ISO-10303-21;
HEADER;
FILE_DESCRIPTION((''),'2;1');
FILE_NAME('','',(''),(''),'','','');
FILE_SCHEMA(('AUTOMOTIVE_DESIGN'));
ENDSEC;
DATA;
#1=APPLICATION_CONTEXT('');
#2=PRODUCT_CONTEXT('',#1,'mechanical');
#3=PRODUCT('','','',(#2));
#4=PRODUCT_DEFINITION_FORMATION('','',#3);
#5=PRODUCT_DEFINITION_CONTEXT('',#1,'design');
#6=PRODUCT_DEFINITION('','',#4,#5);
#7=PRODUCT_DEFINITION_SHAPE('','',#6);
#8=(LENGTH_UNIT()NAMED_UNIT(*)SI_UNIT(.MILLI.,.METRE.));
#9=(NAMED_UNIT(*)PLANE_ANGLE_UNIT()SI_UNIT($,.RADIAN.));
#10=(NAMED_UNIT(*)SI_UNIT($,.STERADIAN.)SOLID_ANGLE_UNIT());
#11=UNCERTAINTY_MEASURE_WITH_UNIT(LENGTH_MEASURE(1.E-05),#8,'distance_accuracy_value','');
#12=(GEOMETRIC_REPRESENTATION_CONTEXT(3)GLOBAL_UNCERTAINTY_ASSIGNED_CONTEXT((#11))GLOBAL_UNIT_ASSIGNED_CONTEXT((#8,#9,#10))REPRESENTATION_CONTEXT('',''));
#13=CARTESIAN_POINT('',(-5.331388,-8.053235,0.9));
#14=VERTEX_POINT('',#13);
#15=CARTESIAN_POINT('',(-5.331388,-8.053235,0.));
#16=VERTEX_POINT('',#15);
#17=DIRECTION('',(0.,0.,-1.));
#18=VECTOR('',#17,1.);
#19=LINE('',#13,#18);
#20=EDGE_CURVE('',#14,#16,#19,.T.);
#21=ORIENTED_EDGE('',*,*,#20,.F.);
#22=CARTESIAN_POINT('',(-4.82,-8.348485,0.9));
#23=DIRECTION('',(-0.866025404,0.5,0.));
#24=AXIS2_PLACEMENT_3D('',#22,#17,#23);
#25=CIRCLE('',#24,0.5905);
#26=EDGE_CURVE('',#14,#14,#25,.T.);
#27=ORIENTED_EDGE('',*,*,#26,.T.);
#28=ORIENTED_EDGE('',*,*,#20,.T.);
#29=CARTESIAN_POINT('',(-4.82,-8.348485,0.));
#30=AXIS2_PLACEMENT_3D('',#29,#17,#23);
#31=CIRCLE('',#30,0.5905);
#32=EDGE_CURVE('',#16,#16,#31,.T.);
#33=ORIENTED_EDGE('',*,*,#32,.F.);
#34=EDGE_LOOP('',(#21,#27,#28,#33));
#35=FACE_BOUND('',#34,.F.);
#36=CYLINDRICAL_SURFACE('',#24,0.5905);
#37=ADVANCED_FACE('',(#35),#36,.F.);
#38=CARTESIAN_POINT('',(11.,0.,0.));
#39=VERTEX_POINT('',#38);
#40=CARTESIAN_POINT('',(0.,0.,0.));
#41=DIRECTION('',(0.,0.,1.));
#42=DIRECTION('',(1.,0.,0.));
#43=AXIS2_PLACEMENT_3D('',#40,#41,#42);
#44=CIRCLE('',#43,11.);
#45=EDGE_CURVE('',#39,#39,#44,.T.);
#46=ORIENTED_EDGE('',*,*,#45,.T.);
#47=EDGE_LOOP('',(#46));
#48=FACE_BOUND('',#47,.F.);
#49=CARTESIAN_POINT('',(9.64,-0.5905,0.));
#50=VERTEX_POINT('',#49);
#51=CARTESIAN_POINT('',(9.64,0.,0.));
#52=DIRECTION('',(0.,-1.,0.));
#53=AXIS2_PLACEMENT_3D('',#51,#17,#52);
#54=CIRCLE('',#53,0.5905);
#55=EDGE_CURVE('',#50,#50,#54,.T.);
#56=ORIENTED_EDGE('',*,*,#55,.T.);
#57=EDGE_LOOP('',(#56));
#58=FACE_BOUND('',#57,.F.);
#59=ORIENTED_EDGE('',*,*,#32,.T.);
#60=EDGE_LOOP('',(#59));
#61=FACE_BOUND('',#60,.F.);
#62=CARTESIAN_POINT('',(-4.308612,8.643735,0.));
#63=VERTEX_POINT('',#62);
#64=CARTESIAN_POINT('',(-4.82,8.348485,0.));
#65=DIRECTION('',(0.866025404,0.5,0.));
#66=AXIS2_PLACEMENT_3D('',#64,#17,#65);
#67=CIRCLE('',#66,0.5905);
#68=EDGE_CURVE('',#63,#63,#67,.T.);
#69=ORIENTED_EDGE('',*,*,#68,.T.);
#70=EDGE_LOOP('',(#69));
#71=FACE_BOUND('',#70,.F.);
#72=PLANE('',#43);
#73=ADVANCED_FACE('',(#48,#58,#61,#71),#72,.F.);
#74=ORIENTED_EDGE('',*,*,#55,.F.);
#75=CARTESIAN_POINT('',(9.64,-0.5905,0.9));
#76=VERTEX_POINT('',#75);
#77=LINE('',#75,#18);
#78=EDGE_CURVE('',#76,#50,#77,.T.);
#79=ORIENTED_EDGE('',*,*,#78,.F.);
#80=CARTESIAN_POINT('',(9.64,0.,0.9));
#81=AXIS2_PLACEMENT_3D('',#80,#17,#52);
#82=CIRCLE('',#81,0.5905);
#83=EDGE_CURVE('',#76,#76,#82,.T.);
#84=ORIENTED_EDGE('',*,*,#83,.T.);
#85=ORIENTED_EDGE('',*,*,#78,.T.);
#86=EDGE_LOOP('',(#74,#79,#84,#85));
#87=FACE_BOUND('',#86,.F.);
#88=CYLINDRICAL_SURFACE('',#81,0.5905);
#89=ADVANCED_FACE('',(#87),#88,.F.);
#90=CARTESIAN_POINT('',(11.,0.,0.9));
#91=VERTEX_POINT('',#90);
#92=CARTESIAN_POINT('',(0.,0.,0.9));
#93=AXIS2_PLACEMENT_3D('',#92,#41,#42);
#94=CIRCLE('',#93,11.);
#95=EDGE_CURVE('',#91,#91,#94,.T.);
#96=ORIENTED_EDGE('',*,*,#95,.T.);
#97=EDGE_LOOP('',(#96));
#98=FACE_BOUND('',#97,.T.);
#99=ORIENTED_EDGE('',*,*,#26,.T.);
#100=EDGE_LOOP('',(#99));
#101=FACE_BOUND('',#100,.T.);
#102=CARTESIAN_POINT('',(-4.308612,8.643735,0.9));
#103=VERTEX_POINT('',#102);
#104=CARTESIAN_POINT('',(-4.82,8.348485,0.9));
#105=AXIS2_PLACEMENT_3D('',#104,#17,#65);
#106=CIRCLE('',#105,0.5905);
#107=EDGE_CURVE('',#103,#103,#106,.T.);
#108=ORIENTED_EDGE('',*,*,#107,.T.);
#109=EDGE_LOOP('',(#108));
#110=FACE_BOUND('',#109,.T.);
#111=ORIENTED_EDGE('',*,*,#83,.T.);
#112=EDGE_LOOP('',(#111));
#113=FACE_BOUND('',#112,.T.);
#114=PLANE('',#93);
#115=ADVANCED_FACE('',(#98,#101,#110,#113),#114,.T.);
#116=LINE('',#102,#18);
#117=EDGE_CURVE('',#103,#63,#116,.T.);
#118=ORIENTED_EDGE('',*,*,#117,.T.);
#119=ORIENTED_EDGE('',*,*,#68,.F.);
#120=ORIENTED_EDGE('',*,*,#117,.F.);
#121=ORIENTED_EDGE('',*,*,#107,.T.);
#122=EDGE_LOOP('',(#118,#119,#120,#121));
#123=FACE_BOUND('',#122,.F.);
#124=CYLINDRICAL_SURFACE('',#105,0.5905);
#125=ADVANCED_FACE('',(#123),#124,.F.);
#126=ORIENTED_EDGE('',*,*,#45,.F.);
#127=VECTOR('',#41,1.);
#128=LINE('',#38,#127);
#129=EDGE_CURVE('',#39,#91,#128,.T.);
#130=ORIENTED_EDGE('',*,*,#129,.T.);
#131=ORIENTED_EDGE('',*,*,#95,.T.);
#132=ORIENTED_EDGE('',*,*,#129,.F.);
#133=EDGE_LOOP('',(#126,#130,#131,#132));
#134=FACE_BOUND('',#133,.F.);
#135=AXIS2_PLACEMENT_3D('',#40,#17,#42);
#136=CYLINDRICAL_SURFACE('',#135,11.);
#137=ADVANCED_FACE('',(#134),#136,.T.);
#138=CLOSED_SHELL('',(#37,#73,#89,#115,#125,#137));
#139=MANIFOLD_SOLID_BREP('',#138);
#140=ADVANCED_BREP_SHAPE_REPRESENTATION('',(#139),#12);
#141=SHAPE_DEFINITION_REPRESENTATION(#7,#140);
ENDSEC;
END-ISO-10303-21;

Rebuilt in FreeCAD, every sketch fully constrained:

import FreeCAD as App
import Part
import Sketcher

doc = App.newDocument("Part")
params = doc.addObject("Spreadsheet::Sheet", "Params")
for row, (alias, value) in enumerate([
    ("sketch1_diameter", "22 mm"),
    ("pad1_length", "0.9 mm"),
    ("hole_diameter", "1.181 mm"),
    ("hole_depth", "8 mm"),
], start=1):
    params.set(f"A{row}", alias)
    params.set(f"B{row}", "=" + value)
    params.setAlias(f"B{row}", alias)

body = doc.addObject("PartDesign::Body", "Body")

sketch1 = body.newObject("Sketcher::SketchObject", "Sketch")
sketch1.AttachmentSupport = (doc.getObject("XY_Plane"), [""])
sketch1.MapMode = "FlatFace"
sketch1.addGeometry(Part.Circle(App.Vector(0, 0, 0), App.Vector(0, 0, 1), 11), False)
sketch1.addConstraint([
    Sketcher.Constraint("Coincident", 0, 3, -1, 1),
    Sketcher.Constraint("Diameter", 0, 22.0),
])
sketch1.setExpression("Constraints[1]", "Params.sketch1_diameter")
pad1 = body.newObject("PartDesign::Pad", "Pad")
pad1.Profile = sketch1
pad1.setExpression("Length", "Params.pad1_length")

sketch2 = body.newObject("Sketcher::SketchObject", "Sketch001")
sketch2.AttachmentSupport = (doc.getObject("XY_Plane"), [""])
sketch2.MapMode = "FlatFace"
sketch2.AttachmentOffset = App.Placement(App.Vector(0, 0, 0.9), App.Rotation())
sketch2.addGeometry(Part.Circle(App.Vector(9.6, 0, 0), App.Vector(0, 0, 1), 0.6), False)
sketch2.addConstraint([
    Sketcher.Constraint("PointOnObject", 0, 3, -1),
    Sketcher.Constraint("Diameter", 0, 1.181),
    Sketcher.Constraint("DistanceX", -1, 1, 0, 3, 9.64),
])
doc.recompute()
hole = body.newObject("PartDesign::Hole", "Hole")
hole.Profile = sketch2
hole.ThreadType = "None"
hole.setExpression("Diameter", "Params.hole_diameter")
hole.DepthType = "Dimension"
hole.setExpression("Depth", "Params.hole_depth")
hole.DrillPoint = "Flat"
doc.recompute()

polarpattern = body.newObject("PartDesign::PolarPattern", "PolarPattern")
polarpattern.Originals = [hole]
polarpattern.Axis = (doc.getObject("Z_Axis"), [""])
polarpattern.Angle = 360
polarpattern.Occurrences = 3
body.Tip = polarpattern

doc.recompute()
